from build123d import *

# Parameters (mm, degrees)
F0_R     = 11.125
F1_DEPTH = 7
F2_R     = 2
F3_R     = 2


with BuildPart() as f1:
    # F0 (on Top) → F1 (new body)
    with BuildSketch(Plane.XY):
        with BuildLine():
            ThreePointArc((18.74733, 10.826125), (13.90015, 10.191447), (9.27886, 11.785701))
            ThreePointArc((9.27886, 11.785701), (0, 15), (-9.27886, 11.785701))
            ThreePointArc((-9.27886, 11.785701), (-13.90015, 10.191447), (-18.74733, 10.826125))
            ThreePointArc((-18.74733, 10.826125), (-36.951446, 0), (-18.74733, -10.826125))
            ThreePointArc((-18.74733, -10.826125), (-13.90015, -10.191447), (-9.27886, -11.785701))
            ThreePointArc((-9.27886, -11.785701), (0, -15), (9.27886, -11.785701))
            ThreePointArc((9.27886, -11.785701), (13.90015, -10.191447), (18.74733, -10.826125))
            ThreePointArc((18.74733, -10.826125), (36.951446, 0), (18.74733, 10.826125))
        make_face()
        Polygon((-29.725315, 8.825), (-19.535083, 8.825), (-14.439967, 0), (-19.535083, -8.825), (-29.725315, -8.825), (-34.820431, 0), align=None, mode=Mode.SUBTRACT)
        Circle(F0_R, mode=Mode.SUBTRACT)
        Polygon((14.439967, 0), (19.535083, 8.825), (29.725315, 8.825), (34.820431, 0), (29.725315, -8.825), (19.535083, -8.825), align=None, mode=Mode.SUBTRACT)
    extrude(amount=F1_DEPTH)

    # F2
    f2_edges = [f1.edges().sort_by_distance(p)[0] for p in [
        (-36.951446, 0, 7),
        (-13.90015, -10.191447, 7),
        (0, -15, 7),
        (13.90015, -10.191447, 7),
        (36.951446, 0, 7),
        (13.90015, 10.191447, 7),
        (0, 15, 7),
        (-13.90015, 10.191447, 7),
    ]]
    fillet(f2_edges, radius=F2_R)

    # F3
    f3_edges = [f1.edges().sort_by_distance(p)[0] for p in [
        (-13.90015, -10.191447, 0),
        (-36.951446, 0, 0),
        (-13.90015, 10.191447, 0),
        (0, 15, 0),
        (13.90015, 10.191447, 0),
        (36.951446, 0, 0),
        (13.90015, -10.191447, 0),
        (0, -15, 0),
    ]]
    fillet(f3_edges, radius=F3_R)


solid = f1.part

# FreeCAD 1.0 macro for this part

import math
import FreeCAD as App
import Part
import Sketcher
Q = App.Units.Quantity


def edges_at(feature, points):
    """Names of the edges that pass closest to the given points."""
    edges = feature.Shape.Edges
    near = lambda p: min(range(len(edges)), key=lambda i: edges[i].distToShape(Part.Vertex(*p))[0])
    return sorted({f"Edge{near(p) + 1}" for p in points})


def add_polygon(sketch, points):
    """Adds a closed chain of lines whose ends are joined by coincident constraints."""
    first, n = sketch.GeometryCount, len(points)
    for a, b in zip(points, points[1:] + points[:1]):
        sketch.addGeometry(Part.LineSegment(App.Vector(*a, 0), App.Vector(*b, 0)), False)
    for i in range(n):
        sketch.addConstraint(Sketcher.Constraint("Coincident", first + i, 2, first + (i + 1) % n, 1))

doc = App.newDocument("Part")
body = doc.addObject("PartDesign::Body", "Body")

# Sketch on XY plane
sketch1 = doc.addObject("Sketcher::SketchObject", "Sketch")
body.addObject(sketch1)
sketch1.AttachmentSupport = (doc.XY_Plane, [""])
sketch1.MapMode = "FlatFace"
sketch1.addGeometry(Part.ArcOfCircle(Part.Circle(App.Vector(15, 21, 0), App.Vector(0, 0, 1), 11), math.radians(-122), math.radians(-69)), False)  # 0
sketch1.addGeometry(Part.ArcOfCircle(Part.Circle(App.Vector(0, 0, 0), App.Vector(0, 0, 1), 15), math.radians(52), math.radians(128)), False)  # 1
sketch1.addGeometry(Part.ArcOfCircle(Part.Circle(App.Vector(-15, 21, 0), App.Vector(0, 0, 1), 11), math.radians(-111), math.radians(-58)), False)  # 2
sketch1.addGeometry(Part.ArcOfCircle(Part.Circle(App.Vector(-25, 0, 0), App.Vector(0, 0, 1), 12), math.radians(61), math.radians(299)), False)  # 3
sketch1.addGeometry(Part.ArcOfCircle(Part.Circle(App.Vector(-15, -21, 0), App.Vector(0, 0, 1), 11), math.radians(58), math.radians(111)), False)  # 4
sketch1.addGeometry(Part.ArcOfCircle(Part.Circle(App.Vector(0, 0, 0), App.Vector(0, 0, 1), 15), math.radians(-128), math.radians(-52)), False)  # 5
sketch1.addGeometry(Part.ArcOfCircle(Part.Circle(App.Vector(15, -21, 0), App.Vector(0, 0, 1), 11), math.radians(69), math.radians(122)), False)  # 6
sketch1.addGeometry(Part.ArcOfCircle(Part.Circle(App.Vector(25, 0, 0), App.Vector(0, 0, 1), 12), math.radians(-119), math.radians(119)), False)  # 7
add_polygon(sketch1, [(-35, 0), (-30, 9), (-20, 9), (-14, 0), (-20, -9), (-30, -9)])  # lines 8-13
sketch1.addGeometry(Part.Circle(App.Vector(0, 0, 0), App.Vector(0, 0, 1), 11), False)  # 14
add_polygon(sketch1, [(20, -9), (14, 0), (20, 9), (30, 9), (35, 0), (30, -9)])  # lines 15-20
sketch1.addConstraint([
    Sketcher.Constraint("Coincident", 0, 1, 1, 1),
    Sketcher.Constraint("Coincident", 1, 2, 2, 2),
    Sketcher.Constraint("Coincident", 2, 1, 3, 1),
    Sketcher.Constraint("Coincident", 3, 2, 4, 2),
    Sketcher.Constraint("Coincident", 4, 1, 5, 1),
    Sketcher.Constraint("Coincident", 5, 2, 6, 2),
    Sketcher.Constraint("Coincident", 6, 1, 7, 1),
    Sketcher.Constraint("Coincident", 7, 2, 0, 2),
    Sketcher.Constraint("Horizontal", 9),
    Sketcher.Constraint("Horizontal", 12),
    Sketcher.Constraint("Horizontal", 17),
    Sketcher.Constraint("Horizontal", 20),
    Sketcher.Constraint("Coincident", 1, 3, -1, 1),
    Sketcher.Constraint("Coincident", 5, 3, -1, 1),
    Sketcher.Constraint("Coincident", 14, 3, -1, 1),
    Sketcher.Constraint("Equal", 0, 2),
    Sketcher.Constraint("Equal", 2, 4),
    Sketcher.Constraint("Equal", 1, 5),
    Sketcher.Constraint("Equal", 4, 6),
    Sketcher.Constraint("Equal", 3, 7),
    Sketcher.Constraint("Symmetric", 0, 3, 4, 3, -1, 1),
    Sketcher.Constraint("Symmetric", 2, 3, 6, 3, -1, 1),
    Sketcher.Constraint("Symmetric", 3, 3, 7, 3, -1, 1),
    Sketcher.Constraint("Symmetric", 10, 2, 15, 2, -1, 1),
    Sketcher.Constraint("Symmetric", 11, 2, 16, 2, -1, 1),
    Sketcher.Constraint("Symmetric", 13, 2, 18, 2, -1, 1),
    Sketcher.Constraint("Symmetric", 8, 2, 19, 2, -1, 1),
    Sketcher.Constraint("Symmetric", 0, 3, 2, 3, -2),
    Sketcher.Constraint("Symmetric", 9, 2, 16, 2, -2),
    Sketcher.Constraint("PointOnObject", 3, 3, -1),
    Sketcher.Constraint("PointOnObject", 10, 2, -1),
    Sketcher.Constraint("PointOnObject", 13, 2, -1),
    Sketcher.Constraint("Parallel", 8, 11),
    Sketcher.Constraint("Parallel", 10, 13),
    Sketcher.Constraint("Parallel", 13, 15),
    Sketcher.Constraint("Parallel", 15, 18),
    Sketcher.Constraint("Radius", 1, Q("14.999999 mm")),
    Sketcher.Constraint("Diameter", 14, Q("22.25 mm")),
    Sketcher.Constraint("Angle", 8, Q("60.000001 deg")),
    Sketcher.Constraint("DistanceY", 12, 2, 8, 2, Q("17.65 mm")),
    Sketcher.Constraint("Radius", 0, Q("10.667073 mm")),
    Sketcher.Constraint("Radius", 3, Q("12.321247 mm")),
    Sketcher.Constraint("DistanceX", 9, 1, 9, 2, Q("10.190232 mm")),
    Sketcher.Constraint("DistanceX", 3, 3, -1, 1, Q("24.630199 mm")),
    Sketcher.Constraint("DistanceY", -1, 1, 0, 1, Q("11.785701 mm")),
    Sketcher.Constraint("DistanceX", 7, 2, 18, 2, Q("16.073101 mm")),
    Sketcher.Constraint("DistanceX", -1, 1, 0, 3, Q("14.975689 mm")),
])
pad1 = doc.addObject("PartDesign::Pad", "Pad")
body.addObject(pad1)
pad1.Profile = sketch1
pad1.Length = 7
doc.recompute()

fillet = doc.addObject("PartDesign::Fillet", "Fillet")
body.addObject(fillet)
fillet.Base = (pad1, edges_at(pad1, [
    (-36.951, 0, 7),
    (-13.9, -10.191, 7),
    (0, -15, 7),
    (13.9, -10.191, 7),
    (36.951, 0, 7),
    (13.9, 10.191, 7),
    (0, 15, 7),
    (-13.9, 10.191, 7),
]))
fillet.Radius = 2
doc.recompute()

fillet2 = doc.addObject("PartDesign::Fillet", "Fillet001")
body.addObject(fillet2)
fillet2.Base = (fillet, edges_at(fillet, [
    (-13.9, -10.191, 0),
    (-36.951, 0, 0),
    (-13.9, 10.191, 0),
    (0, 15, 0),
    (13.9, 10.191, 0),
    (36.951, 0, 0),
    (13.9, -10.191, 0),
    (0, -15, 0),
]))
fillet2.Radius = 2

doc.recompute()
